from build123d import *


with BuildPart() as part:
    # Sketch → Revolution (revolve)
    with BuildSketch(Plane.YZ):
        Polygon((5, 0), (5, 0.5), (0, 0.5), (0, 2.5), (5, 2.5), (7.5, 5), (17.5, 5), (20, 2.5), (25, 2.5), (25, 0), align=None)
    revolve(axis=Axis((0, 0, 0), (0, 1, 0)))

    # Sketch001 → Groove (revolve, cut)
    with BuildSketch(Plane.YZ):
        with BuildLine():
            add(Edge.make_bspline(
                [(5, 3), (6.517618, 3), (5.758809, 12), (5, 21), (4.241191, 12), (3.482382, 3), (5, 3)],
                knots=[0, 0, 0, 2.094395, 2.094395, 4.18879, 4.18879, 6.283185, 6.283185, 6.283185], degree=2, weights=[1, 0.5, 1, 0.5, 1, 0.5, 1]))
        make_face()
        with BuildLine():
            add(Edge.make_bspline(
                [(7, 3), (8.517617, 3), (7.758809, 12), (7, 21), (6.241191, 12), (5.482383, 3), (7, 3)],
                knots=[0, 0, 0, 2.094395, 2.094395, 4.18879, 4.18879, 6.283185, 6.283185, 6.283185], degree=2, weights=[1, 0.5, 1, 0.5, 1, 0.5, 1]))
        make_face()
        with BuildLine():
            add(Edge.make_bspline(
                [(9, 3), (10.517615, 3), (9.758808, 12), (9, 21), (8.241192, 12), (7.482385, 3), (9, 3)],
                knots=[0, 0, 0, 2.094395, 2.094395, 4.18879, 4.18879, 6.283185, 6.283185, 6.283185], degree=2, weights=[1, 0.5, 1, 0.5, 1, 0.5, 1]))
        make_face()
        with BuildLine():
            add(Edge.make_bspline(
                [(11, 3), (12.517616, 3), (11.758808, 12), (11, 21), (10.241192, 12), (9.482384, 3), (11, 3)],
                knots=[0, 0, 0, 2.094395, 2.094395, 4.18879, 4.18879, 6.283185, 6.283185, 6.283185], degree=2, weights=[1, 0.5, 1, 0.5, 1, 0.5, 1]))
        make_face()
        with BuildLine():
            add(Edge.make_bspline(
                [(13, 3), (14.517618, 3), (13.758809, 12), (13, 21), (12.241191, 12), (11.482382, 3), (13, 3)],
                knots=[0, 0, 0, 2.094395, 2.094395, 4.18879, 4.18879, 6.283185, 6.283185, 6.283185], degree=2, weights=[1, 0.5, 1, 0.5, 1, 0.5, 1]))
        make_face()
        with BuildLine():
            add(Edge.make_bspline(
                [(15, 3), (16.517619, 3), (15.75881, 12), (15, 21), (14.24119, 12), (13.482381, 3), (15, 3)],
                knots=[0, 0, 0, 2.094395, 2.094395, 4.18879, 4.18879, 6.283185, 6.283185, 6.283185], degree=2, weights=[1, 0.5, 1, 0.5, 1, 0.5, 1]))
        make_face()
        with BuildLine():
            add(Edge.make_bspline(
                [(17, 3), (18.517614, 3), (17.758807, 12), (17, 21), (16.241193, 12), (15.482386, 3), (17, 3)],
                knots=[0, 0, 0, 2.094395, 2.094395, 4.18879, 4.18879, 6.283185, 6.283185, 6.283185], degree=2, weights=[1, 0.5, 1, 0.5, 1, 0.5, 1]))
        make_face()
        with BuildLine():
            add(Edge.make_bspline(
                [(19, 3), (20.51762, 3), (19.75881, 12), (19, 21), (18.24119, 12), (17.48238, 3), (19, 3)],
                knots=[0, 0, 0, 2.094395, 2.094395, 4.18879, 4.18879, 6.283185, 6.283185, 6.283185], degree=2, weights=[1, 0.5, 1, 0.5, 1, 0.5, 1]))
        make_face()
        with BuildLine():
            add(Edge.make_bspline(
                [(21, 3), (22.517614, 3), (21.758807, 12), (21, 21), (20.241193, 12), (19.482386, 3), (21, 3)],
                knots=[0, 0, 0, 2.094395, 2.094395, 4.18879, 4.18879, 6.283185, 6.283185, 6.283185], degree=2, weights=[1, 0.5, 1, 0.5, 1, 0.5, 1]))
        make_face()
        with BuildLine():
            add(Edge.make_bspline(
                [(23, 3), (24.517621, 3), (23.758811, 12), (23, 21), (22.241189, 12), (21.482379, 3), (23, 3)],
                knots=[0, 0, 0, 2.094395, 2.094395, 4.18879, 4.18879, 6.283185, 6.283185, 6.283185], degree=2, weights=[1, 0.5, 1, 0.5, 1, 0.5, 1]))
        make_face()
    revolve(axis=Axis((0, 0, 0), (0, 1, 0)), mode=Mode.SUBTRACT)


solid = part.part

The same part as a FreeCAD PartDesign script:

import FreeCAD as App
import Part
import Sketcher

doc = App.newDocument("Part")
body = doc.addObject("PartDesign::Body", "Body")

# Sketch on YZ plane
sketch1 = body.newObject("Sketcher::SketchObject", "Sketch")
sketch1.AttachmentSupport = (doc.getObject("YZ_Plane"), [""])
sketch1.MapMode = "FlatFace"
sketch1.addGeometry([
    Part.LineSegment(App.Vector(5, 0.5, 0), App.Vector(5, 0, 0)),  # 0
    Part.LineSegment(App.Vector(5, 0, 0), App.Vector(25, 0, 0)),  # 1
    Part.LineSegment(App.Vector(25, 0, 0), App.Vector(25, 2.5, 0)),  # 2
    Part.LineSegment(App.Vector(25, 2.5, 0), App.Vector(20, 2.5, 0)),  # 3
    Part.LineSegment(App.Vector(20, 2.5, 0), App.Vector(17.5, 5, 0)),  # 4
    Part.LineSegment(App.Vector(17.5, 5, 0), App.Vector(7.5, 5, 0)),  # 5
    Part.LineSegment(App.Vector(7.5, 5, 0), App.Vector(5, 2.5, 0)),  # 6
    Part.LineSegment(App.Vector(5, 2.5, 0), App.Vector(0, 2.5, 0)),  # 7
    Part.LineSegment(App.Vector(0, 2.5, 0), App.Vector(0, 0.5, 0)),  # 8
    Part.LineSegment(App.Vector(0, 0.5, 0), App.Vector(5, 0.5, 0)),  # 9
], False)
sketch1.addConstraint([
    Sketcher.Constraint("Coincident", 0, 2, 1, 1),
    Sketcher.Constraint("Coincident", 1, 2, 2, 1),
    Sketcher.Constraint("Coincident", 2, 2, 3, 1),
    Sketcher.Constraint("Coincident", 3, 2, 4, 1),
    Sketcher.Constraint("Coincident", 4, 2, 5, 1),
    Sketcher.Constraint("Coincident", 5, 2, 6, 1),
    Sketcher.Constraint("Coincident", 6, 2, 7, 1),
    Sketcher.Constraint("Coincident", 7, 2, 8, 1),
    Sketcher.Constraint("Coincident", 8, 2, 9, 1),
    Sketcher.Constraint("Coincident", 9, 2, 0, 1),
    Sketcher.Constraint("Vertical", 0),
    Sketcher.Constraint("Horizontal", 1),
    Sketcher.Constraint("Vertical", 2),
    Sketcher.Constraint("Horizontal", 3),
    Sketcher.Constraint("Horizontal", 5),
    Sketcher.Constraint("Horizontal", 7),
    Sketcher.Constraint("Vertical", 8),
    Sketcher.Constraint("Horizontal", 9),
    Sketcher.Constraint("PointOnObject", 0, 2, -1),
    Sketcher.Constraint("PointOnObject", 7, 2, -2),
    Sketcher.Constraint("Perpendicular", 4, 6),
    Sketcher.Constraint("Horizontal", 3, 2, 6, 2),
    Sketcher.Constraint("Vertical", 0, 2, 6, 2),
    Sketcher.Constraint("Equal", 3, 7),
    Sketcher.Constraint("Equal", 4, 6),
    Sketcher.Constraint("DistanceX", 1, 1, 1, 2, 20.0),
    Sketcher.Constraint("DistanceX", 3, 2, 3, 1, 5.0),
    Sketcher.Constraint("DistanceX", 5, 2, 5, 1, 10.0),
    Sketcher.Constraint("DistanceY", 8, 2, 8, 1, 2.0),
    Sketcher.Constraint("DistanceY", 0, 2, 0, 1, 0.5),
])
revolution = body.newObject("PartDesign::Revolution", "Revolution")
revolution.Profile = sketch1
revolution.ReferenceAxis = (sketch1, ["H_Axis"])
revolution.Angle = 360

# Sketch on YZ plane
sketch2 = body.newObject("Sketcher::SketchObject", "Sketch001")
sketch2.AttachmentSupport = (doc.getObject("YZ_Plane"), [""])
sketch2.MapMode = "FlatFace"
sketch2.addGeometry([
    Part.BSplineCurve([App.Vector(5, 3, 0), App.Vector(6.517618, 3, 0), App.Vector(5.758809, 12, 0), App.Vector(5, 21, 0), App.Vector(4.241191, 12, 0), App.Vector(3.482382, 3, 0), App.Vector(5, 3, 0)], [3, 2, 2, 3], [0, 2.094395, 4.18879, 6.283185], False, 2, [1, 0.5, 1, 0.5, 1, 0.5, 1], False),  # 0
    Part.BSplineCurve([App.Vector(7, 3, 0), App.Vector(8.517617, 3, 0), App.Vector(7.758809, 12, 0), App.Vector(7, 21, 0), App.Vector(6.241191, 12, 0), App.Vector(5.482383, 3, 0), App.Vector(7, 3, 0)], [3, 2, 2, 3], [0, 2.094395, 4.18879, 6.283185], False, 2, [1, 0.5, 1, 0.5, 1, 0.5, 1], False),  # 1
    Part.BSplineCurve([App.Vector(9, 3, 0), App.Vector(10.517615, 3, 0), App.Vector(9.758808, 12, 0), App.Vector(9, 21, 0), App.Vector(8.241192, 12, 0), App.Vector(7.482385, 3, 0), App.Vector(9, 3, 0)], [3, 2, 2, 3], [0, 2.094395, 4.18879, 6.283185], False, 2, [1, 0.5, 1, 0.5, 1, 0.5, 1], False),  # 2
    Part.BSplineCurve([App.Vector(11, 3, 0), App.Vector(12.517616, 3, 0), App.Vector(11.758808, 12, 0), App.Vector(11, 21, 0), App.Vector(10.241192, 12, 0), App.Vector(9.482384, 3, 0), App.Vector(11, 3, 0)], [3, 2, 2, 3], [0, 2.094395, 4.18879, 6.283185], False, 2, [1, 0.5, 1, 0.5, 1, 0.5, 1], False),  # 3
    Part.BSplineCurve([App.Vector(13, 3, 0), App.Vector(14.517618, 3, 0), App.Vector(13.758809, 12, 0), App.Vector(13, 21, 0), App.Vector(12.241191, 12, 0), App.Vector(11.482382, 3, 0), App.Vector(13, 3, 0)], [3, 2, 2, 3], [0, 2.094395, 4.18879, 6.283185], False, 2, [1, 0.5, 1, 0.5, 1, 0.5, 1], False),  # 4
    Part.BSplineCurve([App.Vector(15, 3, 0), App.Vector(16.517619, 3, 0), App.Vector(15.75881, 12, 0), App.Vector(15, 21, 0), App.Vector(14.24119, 12, 0), App.Vector(13.482381, 3, 0), App.Vector(15, 3, 0)], [3, 2, 2, 3], [0, 2.094395, 4.18879, 6.283185], False, 2, [1, 0.5, 1, 0.5, 1, 0.5, 1], False),  # 5
    Part.BSplineCurve([App.Vector(17, 3, 0), App.Vector(18.517614, 3, 0), App.Vector(17.758807, 12, 0), App.Vector(17, 21, 0), App.Vector(16.241193, 12, 0), App.Vector(15.482386, 3, 0), App.Vector(17, 3, 0)], [3, 2, 2, 3], [0, 2.094395, 4.18879, 6.283185], False, 2, [1, 0.5, 1, 0.5, 1, 0.5, 1], False),  # 6
    Part.BSplineCurve([App.Vector(19, 3, 0), App.Vector(20.51762, 3, 0), App.Vector(19.75881, 12, 0), App.Vector(19, 21, 0), App.Vector(18.24119, 12, 0), App.Vector(17.48238, 3, 0), App.Vector(19, 3, 0)], [3, 2, 2, 3], [0, 2.094395, 4.18879, 6.283185], False, 2, [1, 0.5, 1, 0.5, 1, 0.5, 1], False),  # 7
    Part.BSplineCurve([App.Vector(21, 3, 0), App.Vector(22.517614, 3, 0), App.Vector(21.758807, 12, 0), App.Vector(21, 21, 0), App.Vector(20.241193, 12, 0), App.Vector(19.482386, 3, 0), App.Vector(21, 3, 0)], [3, 2, 2, 3], [0, 2.094395, 4.18879, 6.283185], False, 2, [1, 0.5, 1, 0.5, 1, 0.5, 1], False),  # 8
    Part.BSplineCurve([App.Vector(23, 3, 0), App.Vector(24.517621, 3, 0), App.Vector(23.758811, 12, 0), App.Vector(23, 21, 0), App.Vector(22.241189, 12, 0), App.Vector(21.482379, 3, 0), App.Vector(23, 3, 0)], [3, 2, 2, 3], [0, 2.094395, 4.18879, 6.283185], False, 2, [1, 0.5, 1, 0.5, 1, 0.5, 1], False),  # 9
], False)
sketch2.addConstraint([
    Sketcher.Constraint("Block", 0),
    Sketcher.Constraint("Block", 1),
    Sketcher.Constraint("Block", 2),
    Sketcher.Constraint("Block", 3),
    Sketcher.Constraint("Block", 4),
    Sketcher.Constraint("Block", 5),
    Sketcher.Constraint("Block", 6),
    Sketcher.Constraint("Block", 7),
    Sketcher.Constraint("Block", 8),
    Sketcher.Constraint("Block", 9),
])
groove = body.newObject("PartDesign::Groove", "Groove")
groove.Profile = sketch2
groove.ReferenceAxis = (sketch2, ["H_Axis"])
groove.Angle = 360

doc.recompute()
